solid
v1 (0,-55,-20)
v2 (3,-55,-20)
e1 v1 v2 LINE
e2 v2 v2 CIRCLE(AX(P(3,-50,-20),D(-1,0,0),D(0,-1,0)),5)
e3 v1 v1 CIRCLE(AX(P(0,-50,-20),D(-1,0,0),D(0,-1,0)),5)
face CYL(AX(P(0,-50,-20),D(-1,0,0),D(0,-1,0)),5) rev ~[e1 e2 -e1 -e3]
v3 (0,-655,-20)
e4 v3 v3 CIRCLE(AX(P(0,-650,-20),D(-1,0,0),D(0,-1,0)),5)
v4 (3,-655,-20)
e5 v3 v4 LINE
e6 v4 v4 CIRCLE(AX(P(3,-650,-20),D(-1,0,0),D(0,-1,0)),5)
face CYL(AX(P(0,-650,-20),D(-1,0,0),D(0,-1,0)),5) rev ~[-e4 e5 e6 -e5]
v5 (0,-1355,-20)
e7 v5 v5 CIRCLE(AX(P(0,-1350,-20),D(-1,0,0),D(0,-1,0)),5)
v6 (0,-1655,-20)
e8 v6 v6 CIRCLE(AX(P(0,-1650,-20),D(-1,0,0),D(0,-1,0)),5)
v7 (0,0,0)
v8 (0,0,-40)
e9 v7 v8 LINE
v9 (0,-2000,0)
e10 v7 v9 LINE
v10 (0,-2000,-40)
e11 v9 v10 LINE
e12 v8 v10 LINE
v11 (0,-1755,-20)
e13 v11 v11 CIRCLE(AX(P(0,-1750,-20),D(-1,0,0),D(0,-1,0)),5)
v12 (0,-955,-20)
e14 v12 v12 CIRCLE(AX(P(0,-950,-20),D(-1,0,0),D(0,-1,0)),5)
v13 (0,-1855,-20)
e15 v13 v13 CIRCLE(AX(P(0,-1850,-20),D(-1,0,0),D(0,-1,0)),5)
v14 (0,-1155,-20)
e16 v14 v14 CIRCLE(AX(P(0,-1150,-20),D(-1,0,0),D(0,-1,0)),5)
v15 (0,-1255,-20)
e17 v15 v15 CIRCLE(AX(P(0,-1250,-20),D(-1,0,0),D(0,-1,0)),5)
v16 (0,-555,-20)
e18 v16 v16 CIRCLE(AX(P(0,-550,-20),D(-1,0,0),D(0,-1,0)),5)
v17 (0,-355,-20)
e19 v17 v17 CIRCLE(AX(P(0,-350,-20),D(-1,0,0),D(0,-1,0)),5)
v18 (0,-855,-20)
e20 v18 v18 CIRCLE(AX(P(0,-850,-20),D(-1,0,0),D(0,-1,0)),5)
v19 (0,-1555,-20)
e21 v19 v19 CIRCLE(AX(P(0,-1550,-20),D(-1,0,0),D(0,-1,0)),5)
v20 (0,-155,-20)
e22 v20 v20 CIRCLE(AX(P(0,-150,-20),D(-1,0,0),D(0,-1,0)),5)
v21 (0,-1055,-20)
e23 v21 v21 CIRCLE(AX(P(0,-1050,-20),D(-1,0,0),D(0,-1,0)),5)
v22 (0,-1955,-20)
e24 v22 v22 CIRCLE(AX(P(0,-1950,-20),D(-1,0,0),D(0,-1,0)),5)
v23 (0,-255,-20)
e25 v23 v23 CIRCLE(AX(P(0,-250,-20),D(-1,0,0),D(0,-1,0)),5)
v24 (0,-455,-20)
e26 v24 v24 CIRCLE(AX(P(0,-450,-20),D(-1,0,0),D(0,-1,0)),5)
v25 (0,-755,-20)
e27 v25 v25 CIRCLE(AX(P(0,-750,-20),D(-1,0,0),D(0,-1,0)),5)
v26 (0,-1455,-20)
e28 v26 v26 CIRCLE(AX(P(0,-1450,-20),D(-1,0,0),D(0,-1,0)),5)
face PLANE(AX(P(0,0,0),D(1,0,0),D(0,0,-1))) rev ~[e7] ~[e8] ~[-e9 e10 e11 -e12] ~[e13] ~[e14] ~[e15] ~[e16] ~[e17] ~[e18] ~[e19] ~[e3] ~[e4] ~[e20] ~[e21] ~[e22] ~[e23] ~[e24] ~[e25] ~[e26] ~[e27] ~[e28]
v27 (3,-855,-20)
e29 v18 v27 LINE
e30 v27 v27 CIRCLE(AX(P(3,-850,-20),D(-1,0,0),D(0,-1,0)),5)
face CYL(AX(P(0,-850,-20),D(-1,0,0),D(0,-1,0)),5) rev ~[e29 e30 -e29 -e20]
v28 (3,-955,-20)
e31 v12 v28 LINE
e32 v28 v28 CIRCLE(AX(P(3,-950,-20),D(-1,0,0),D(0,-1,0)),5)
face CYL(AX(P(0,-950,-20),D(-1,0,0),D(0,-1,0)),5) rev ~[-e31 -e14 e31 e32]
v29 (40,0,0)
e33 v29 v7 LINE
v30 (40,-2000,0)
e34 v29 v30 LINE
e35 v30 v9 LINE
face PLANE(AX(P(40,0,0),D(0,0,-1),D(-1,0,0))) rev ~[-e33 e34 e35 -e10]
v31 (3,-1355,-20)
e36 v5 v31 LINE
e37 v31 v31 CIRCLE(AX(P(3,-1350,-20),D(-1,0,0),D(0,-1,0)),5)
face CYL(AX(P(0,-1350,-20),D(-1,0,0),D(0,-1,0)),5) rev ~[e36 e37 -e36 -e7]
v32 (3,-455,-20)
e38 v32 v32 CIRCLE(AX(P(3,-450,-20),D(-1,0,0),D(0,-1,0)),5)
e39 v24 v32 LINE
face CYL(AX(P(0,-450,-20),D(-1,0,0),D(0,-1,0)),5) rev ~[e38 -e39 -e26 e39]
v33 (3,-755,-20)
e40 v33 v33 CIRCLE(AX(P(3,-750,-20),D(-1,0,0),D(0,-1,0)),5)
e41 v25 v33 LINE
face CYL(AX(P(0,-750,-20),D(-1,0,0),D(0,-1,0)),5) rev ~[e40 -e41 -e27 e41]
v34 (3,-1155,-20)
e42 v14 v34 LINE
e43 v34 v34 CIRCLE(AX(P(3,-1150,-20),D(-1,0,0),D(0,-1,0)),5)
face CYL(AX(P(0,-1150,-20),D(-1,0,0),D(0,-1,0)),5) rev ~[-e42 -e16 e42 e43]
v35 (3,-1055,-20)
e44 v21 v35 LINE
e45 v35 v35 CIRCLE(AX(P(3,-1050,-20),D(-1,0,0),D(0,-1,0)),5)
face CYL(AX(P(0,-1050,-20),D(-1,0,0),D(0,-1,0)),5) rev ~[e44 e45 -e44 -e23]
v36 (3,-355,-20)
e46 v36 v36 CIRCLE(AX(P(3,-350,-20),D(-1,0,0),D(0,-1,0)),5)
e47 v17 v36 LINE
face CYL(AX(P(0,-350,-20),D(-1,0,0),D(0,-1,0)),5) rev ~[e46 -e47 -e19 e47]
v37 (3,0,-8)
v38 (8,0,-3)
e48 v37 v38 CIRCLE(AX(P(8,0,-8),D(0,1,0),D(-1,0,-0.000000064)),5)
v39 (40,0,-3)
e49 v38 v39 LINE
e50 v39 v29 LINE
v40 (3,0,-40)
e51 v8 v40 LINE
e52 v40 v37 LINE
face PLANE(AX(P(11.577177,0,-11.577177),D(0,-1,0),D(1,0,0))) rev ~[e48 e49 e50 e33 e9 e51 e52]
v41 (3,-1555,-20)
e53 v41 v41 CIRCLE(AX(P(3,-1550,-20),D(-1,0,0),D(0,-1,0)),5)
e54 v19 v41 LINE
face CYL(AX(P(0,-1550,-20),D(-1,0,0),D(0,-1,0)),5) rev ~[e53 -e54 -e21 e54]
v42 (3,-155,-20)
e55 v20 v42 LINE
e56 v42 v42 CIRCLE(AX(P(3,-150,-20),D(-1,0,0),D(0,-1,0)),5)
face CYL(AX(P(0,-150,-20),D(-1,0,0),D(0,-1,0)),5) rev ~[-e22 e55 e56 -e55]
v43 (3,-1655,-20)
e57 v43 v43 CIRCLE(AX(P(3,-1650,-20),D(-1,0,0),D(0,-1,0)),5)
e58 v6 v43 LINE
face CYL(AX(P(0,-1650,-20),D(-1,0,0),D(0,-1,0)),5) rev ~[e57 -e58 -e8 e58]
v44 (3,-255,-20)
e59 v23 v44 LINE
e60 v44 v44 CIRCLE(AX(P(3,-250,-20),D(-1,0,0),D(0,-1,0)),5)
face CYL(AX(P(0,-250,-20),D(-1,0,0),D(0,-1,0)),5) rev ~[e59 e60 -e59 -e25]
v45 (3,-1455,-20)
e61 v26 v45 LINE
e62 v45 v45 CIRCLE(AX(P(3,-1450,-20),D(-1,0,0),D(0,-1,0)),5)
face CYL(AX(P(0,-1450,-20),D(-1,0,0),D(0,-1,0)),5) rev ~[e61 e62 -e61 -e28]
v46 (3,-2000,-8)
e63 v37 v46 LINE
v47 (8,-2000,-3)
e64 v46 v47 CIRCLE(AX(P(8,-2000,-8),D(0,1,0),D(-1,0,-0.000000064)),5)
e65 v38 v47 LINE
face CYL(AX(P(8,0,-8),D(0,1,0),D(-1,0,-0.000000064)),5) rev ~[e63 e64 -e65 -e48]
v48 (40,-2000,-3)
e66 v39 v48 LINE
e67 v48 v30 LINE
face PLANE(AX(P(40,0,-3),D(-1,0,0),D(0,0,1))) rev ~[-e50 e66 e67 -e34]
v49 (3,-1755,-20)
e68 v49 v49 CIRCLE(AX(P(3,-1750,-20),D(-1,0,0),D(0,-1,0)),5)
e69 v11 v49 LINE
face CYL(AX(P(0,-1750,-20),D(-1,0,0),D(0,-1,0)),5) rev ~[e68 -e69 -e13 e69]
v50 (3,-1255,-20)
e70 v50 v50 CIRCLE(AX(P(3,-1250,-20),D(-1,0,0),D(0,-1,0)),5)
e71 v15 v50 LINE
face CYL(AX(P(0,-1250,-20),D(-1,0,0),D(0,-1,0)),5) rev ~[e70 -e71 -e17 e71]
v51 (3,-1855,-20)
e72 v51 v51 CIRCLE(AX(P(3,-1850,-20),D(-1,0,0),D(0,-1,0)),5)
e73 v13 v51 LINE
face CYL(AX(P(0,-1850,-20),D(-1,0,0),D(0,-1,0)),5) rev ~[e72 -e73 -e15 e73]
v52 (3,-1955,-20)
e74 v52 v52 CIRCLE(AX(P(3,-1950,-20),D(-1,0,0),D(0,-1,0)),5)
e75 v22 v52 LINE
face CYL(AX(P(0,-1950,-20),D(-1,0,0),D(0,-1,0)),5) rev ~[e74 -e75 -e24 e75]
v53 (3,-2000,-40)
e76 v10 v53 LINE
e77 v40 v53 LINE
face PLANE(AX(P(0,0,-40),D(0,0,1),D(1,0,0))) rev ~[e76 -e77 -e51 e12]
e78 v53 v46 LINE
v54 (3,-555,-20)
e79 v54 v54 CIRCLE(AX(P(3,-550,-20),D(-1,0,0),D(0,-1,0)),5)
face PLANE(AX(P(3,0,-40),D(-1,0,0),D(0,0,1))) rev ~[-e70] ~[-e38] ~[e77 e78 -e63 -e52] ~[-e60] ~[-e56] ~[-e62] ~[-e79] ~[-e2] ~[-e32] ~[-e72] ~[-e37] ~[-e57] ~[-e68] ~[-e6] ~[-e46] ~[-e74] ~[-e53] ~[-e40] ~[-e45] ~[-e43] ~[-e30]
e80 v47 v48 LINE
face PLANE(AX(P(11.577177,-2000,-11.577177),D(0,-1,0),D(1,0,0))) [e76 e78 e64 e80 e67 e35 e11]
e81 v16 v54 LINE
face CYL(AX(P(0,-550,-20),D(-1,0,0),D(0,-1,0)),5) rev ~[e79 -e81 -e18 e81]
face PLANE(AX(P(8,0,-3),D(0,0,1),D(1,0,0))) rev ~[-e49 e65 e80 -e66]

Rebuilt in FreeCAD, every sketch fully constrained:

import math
import FreeCAD as App
import Part
import Sketcher

V = App.Vector
Q = App.Units.Quantity

doc = App.newDocument("Part")
params = doc.addObject("Spreadsheet::Sheet", "Params")
for row, (alias, value) in enumerate([
    ("sketch1_radius", "5 mm"),
    ("sketch1_width", "40 mm"),
    ("sketch1_width2", "3 mm"),
    ("pad1_length", "2000 mm"),
    ("sketch2_diameter", "10 mm"),
], start=1):
    params.set(f"A{row}", alias)
    params.set(f"B{row}", "=" + value)
    params.setAlias(f"B{row}", alias)

body = doc.addObject("PartDesign::Body", "Body")

sketch1 = body.newObject("Sketcher::SketchObject", "Sketch")
sketch1.AttachmentSupport = (doc.getObject("XZ_Plane"), [""])
sketch1.MapMode = "FlatFace"
sketch1.addGeometry(Part.LineSegment(V(40, 0, 0), V(0, 0, 0)), False)
sketch1.addGeometry(Part.LineSegment(V(0, 0, 0), V(0, -40, 0)), False)
sketch1.addGeometry(Part.LineSegment(V(0, -40, 0), V(3, -40, 0)), False)
sketch1.addGeometry(Part.LineSegment(V(3, -40, 0), V(3, -8, 0)), False)
sketch1.addGeometry(Part.ArcOfCircle(Part.Circle(V(8, -8, 0), V(0, 0, 1), 5), math.radians(90), math.radians(180)), False)
sketch1.addGeometry(Part.LineSegment(V(8, -3, 0), V(40, -3, 0)), False)
sketch1.addGeometry(Part.LineSegment(V(40, -3, 0), V(40, 0, 0)), False)
sketch1.addConstraint(Sketcher.Constraint("Coincident", 0, 2, 1, 1))
sketch1.addConstraint(Sketcher.Constraint("Coincident", 1, 2, 2, 1))
sketch1.addConstraint(Sketcher.Constraint("Coincident", 2, 2, 3, 1))
sketch1.addConstraint(Sketcher.Constraint("Tangent", 3, 2, 4, 2))
sketch1.addConstraint(Sketcher.Constraint("Tangent", 4, 1, 5, 1))
sketch1.addConstraint(Sketcher.Constraint("Coincident", 5, 2, 6, 1))
sketch1.addConstraint(Sketcher.Constraint("Coincident", 6, 2, 0, 1))
sketch1.addConstraint(Sketcher.Constraint("Horizontal", 0))
sketch1.addConstraint(Sketcher.Constraint("Vertical", 1))
sketch1.addConstraint(Sketcher.Constraint("Horizontal", 2))
sketch1.addConstraint(Sketcher.Constraint("Vertical", 3))
sketch1.addConstraint(Sketcher.Constraint("Horizontal", 5))
sketch1.addConstraint(Sketcher.Constraint("Vertical", 6))
sketch1.addConstraint(Sketcher.Constraint("Coincident", 0, 2, -1, 1))
sketch1.addConstraint(Sketcher.Constraint("Equal", 0, 1))
sketch1.addConstraint(Sketcher.Constraint("Equal", 5, 3))
sketch1.addConstraint(Sketcher.Constraint("Radius", 4, Q("5 mm")))
sketch1.addConstraint(Sketcher.Constraint("DistanceX", 0, 2, 0, 1, Q("40 mm")))
sketch1.addConstraint(Sketcher.Constraint("DistanceX", 2, 1, 2, 2, Q("3 mm")))
sketch1.setExpression("Constraints[16]", "Params.sketch1_radius")
sketch1.setExpression("Constraints[17]", "Params.sketch1_width")
sketch1.setExpression("Constraints[18]", "Params.sketch1_width2")
pad1 = body.newObject("PartDesign::Pad", "Pad")
pad1.Profile = sketch1
pad1.setExpression("Length", "Params.pad1_length")

sketch2 = body.newObject("Sketcher::SketchObject", "Sketch001")
sketch2.AttachmentSupport = (doc.getObject("YZ_Plane"), [""])
sketch2.MapMode = "FlatFace"
sketch2.addGeometry(Part.Circle(V(-50, -20, 0), V(0, 0, 1), 5), False)
sketch2.addGeometry(Part.Circle(V(-150, -20, 0), V(0, 0, 1), 5), False)
sketch2.addGeometry(Part.Circle(V(-250, -20, 0), V(0, 0, 1), 5), False)
sketch2.addGeometry(Part.Circle(V(-350, -20, 0), V(0, 0, 1), 5), False)
sketch2.addGeometry(Part.Circle(V(-450, -20, 0), V(0, 0, 1), 5), False)
sketch2.addGeometry(Part.Circle(V(-550, -20, 0), V(0, 0, 1), 5), False)
sketch2.addGeometry(Part.Circle(V(-650, -20, 0), V(0, 0, 1), 5), False)
sketch2.addGeometry(Part.Circle(V(-750, -20, 0), V(0, 0, 1), 5), False)
sketch2.addGeometry(Part.Circle(V(-850, -20, 0), V(0, 0, 1), 5), False)
sketch2.addGeometry(Part.Circle(V(-950, -20, 0), V(0, 0, 1), 5), False)
sketch2.addGeometry(Part.Circle(V(-1050, -20, 0), V(0, 0, 1), 5), False)
sketch2.addGeometry(Part.Circle(V(-1150, -20, 0), V(0, 0, 1), 5), False)
sketch2.addGeometry(Part.Circle(V(-1250, -20, 0), V(0, 0, 1), 5), False)
sketch2.addGeometry(Part.Circle(V(-1350, -20, 0), V(0, 0, 1), 5), False)
sketch2.addGeometry(Part.Circle(V(-1450, -20, 0), V(0, 0, 1), 5), False)
sketch2.addGeometry(Part.Circle(V(-1550, -20, 0), V(0, 0, 1), 5), False)
sketch2.addGeometry(Part.Circle(V(-1650, -20, 0), V(0, 0, 1), 5), False)
sketch2.addGeometry(Part.Circle(V(-1750, -20, 0), V(0, 0, 1), 5), False)
sketch2.addGeometry(Part.Circle(V(-1850, -20, 0), V(0, 0, 1), 5), False)
sketch2.addGeometry(Part.Circle(V(-1950, -20, 0), V(0, 0, 1), 5), False)
sketch2.addGeometry(Part.Circle(V(-2050, -20, 0), V(0, 0, 1), 5), False)
sketch2.addGeometry(Part.Circle(V(-2150, -20, 0), V(0, 0, 1), 5), False)
sketch2.addGeometry(Part.Circle(V(-2250, -20, 0), V(0, 0, 1), 5), False)
sketch2.addGeometry(Part.Circle(V(-2350, -20, 0), V(0, 0, 1), 5), False)
sketch2.addGeometry(Part.Circle(V(-2450, -20, 0), V(0, 0, 1), 5), False)
sketch2.addConstraint(Sketcher.Constraint("Equal", 0, 1))
sketch2.addConstraint(Sketcher.Constraint("Equal", 1, 2))
sketch2.addConstraint(Sketcher.Constraint("Equal", 2, 3))
sketch2.addConstraint(Sketcher.Constraint("Equal", 3, 4))
sketch2.addConstraint(Sketcher.Constraint("Equal", 4, 5))
sketch2.addConstraint(Sketcher.Constraint("Equal", 5, 6))
sketch2.addConstraint(Sketcher.Constraint("Equal", 6, 7))
sketch2.addConstraint(Sketcher.Constraint("Equal", 7, 8))
sketch2.addConstraint(Sketcher.Constraint("Equal", 8, 9))
sketch2.addConstraint(Sketcher.Constraint("Equal", 9, 10))
sketch2.addConstraint(Sketcher.Constraint("Equal", 10, 11))
sketch2.addConstraint(Sketcher.Constraint("Equal", 11, 12))
sketch2.addConstraint(Sketcher.Constraint("Equal", 12, 13))
sketch2.addConstraint(Sketcher.Constraint("Equal", 13, 14))
sketch2.addConstraint(Sketcher.Constraint("Equal", 14, 15))
sketch2.addConstraint(Sketcher.Constraint("Equal", 15, 16))
sketch2.addConstraint(Sketcher.Constraint("Equal", 16, 17))
sketch2.addConstraint(Sketcher.Constraint("Equal", 17, 18))
sketch2.addConstraint(Sketcher.Constraint("Equal", 18, 19))
sketch2.addConstraint(Sketcher.Constraint("Equal", 19, 20))
sketch2.addConstraint(Sketcher.Constraint("Equal", 20, 21))
sketch2.addConstraint(Sketcher.Constraint("Equal", 21, 22))
sketch2.addConstraint(Sketcher.Constraint("Equal", 22, 23))
sketch2.addConstraint(Sketcher.Constraint("Equal", 23, 24))
sketch2.addConstraint(Sketcher.Constraint("Horizontal", 0, 3, 1, 3))
sketch2.addConstraint(Sketcher.Constraint("Horizontal", 1, 3, 2, 3))
sketch2.addConstraint(Sketcher.Constraint("Horizontal", 2, 3, 3, 3))
sketch2.addConstraint(Sketcher.Constraint("Horizontal", 3, 3, 4, 3))
sketch2.addConstraint(Sketcher.Constraint("Horizontal", 4, 3, 5, 3))
sketch2.addConstraint(Sketcher.Constraint("Horizontal", 5, 3, 6, 3))
sketch2.addConstraint(Sketcher.Constraint("Horizontal", 6, 3, 7, 3))
sketch2.addConstraint(Sketcher.Constraint("Horizontal", 7, 3, 8, 3))
sketch2.addConstraint(Sketcher.Constraint("Horizontal", 8, 3, 9, 3))
sketch2.addConstraint(Sketcher.Constraint("Horizontal", 9, 3, 10, 3))
sketch2.addConstraint(Sketcher.Constraint("Horizontal", 10, 3, 11, 3))
sketch2.addConstraint(Sketcher.Constraint("Horizontal", 11, 3, 12, 3))
sketch2.addConstraint(Sketcher.Constraint("Horizontal", 12, 3, 13, 3))
sketch2.addConstraint(Sketcher.Constraint("Horizontal", 13, 3, 14, 3))
sketch2.addConstraint(Sketcher.Constraint("Horizontal", 14, 3, 15, 3))
sketch2.addConstraint(Sketcher.Constraint("Horizontal", 15, 3, 16, 3))
sketch2.addConstraint(Sketcher.Constraint("Horizontal", 16, 3, 17, 3))
sketch2.addConstraint(Sketcher.Constraint("Horizontal", 17, 3, 18, 3))
sketch2.addConstraint(Sketcher.Constraint("Horizontal", 18, 3, 19, 3))
sketch2.addConstraint(Sketcher.Constraint("Horizontal", 19, 3, 20, 3))
sketch2.addConstraint(Sketcher.Constraint("Horizontal", 20, 3, 21, 3))
sketch2.addConstraint(Sketcher.Constraint("Horizontal", 21, 3, 22, 3))
sketch2.addConstraint(Sketcher.Constraint("Horizontal", 22, 3, 23, 3))
sketch2.addConstraint(Sketcher.Constraint("Horizontal", 23, 3, 24, 3))
sketch2.addConstraint(Sketcher.Constraint("Diameter", 0, Q("10 mm")))
sketch2.addConstraint(Sketcher.Constraint("DistanceX", 0, 3, -1, 1, Q("50 mm")))
sketch2.addConstraint(Sketcher.Constraint("DistanceY", 0, 3, -1, 1, Q("20 mm")))
sketch2.addConstraint(Sketcher.Constraint("DistanceX", 1, 3, -1, 1, Q("150 mm")))
sketch2.addConstraint(Sketcher.Constraint("DistanceX", 2, 3, -1, 1, Q("250 mm")))
sketch2.addConstraint(Sketcher.Constraint("DistanceX", 3, 3, -1, 1, Q("350 mm")))
sketch2.addConstraint(Sketcher.Constraint("DistanceX", 4, 3, -1, 1, Q("450 mm")))
sketch2.addConstraint(Sketcher.Constraint("DistanceX", 5, 3, -1, 1, Q("550 mm")))
sketch2.addConstraint(Sketcher.Constraint("DistanceX", 6, 3, -1, 1, Q("650 mm")))
sketch2.addConstraint(Sketcher.Constraint("DistanceX", 7, 3, -1, 1, Q("750 mm")))
sketch2.addConstraint(Sketcher.Constraint("DistanceX", 8, 3, -1, 1, Q("850 mm")))
sketch2.addConstraint(Sketcher.Constraint("DistanceX", 9, 3, -1, 1, Q("950 mm")))
sketch2.addConstraint(Sketcher.Constraint("DistanceX", 10, 3, -1, 1, Q("1050 mm")))
sketch2.addConstraint(Sketcher.Constraint("DistanceX", 11, 3, -1, 1, Q("1150 mm")))
sketch2.addConstraint(Sketcher.Constraint("DistanceX", 12, 3, -1, 1, Q("1250 mm")))
sketch2.addConstraint(Sketcher.Constraint("DistanceX", 13, 3, -1, 1, Q("1350 mm")))
sketch2.addConstraint(Sketcher.Constraint("DistanceX", 14, 3, -1, 1, Q("1450 mm")))
sketch2.addConstraint(Sketcher.Constraint("DistanceX", 15, 3, -1, 1, Q("1550 mm")))
sketch2.addConstraint(Sketcher.Constraint("DistanceX", 16, 3, -1, 1, Q("1650 mm")))
sketch2.addConstraint(Sketcher.Constraint("DistanceX", 17, 3, -1, 1, Q("1750 mm")))
sketch2.addConstraint(Sketcher.Constraint("DistanceX", 18, 3, -1, 1, Q("1850 mm")))
sketch2.addConstraint(Sketcher.Constraint("DistanceX", 19, 3, -1, 1, Q("1950 mm")))
sketch2.addConstraint(Sketcher.Constraint("DistanceX", 20, 3, -1, 1, Q("2050 mm")))
sketch2.addConstraint(Sketcher.Constraint("DistanceX", 21, 3, -1, 1, Q("2150 mm")))
sketch2.addConstraint(Sketcher.Constraint("DistanceX", 22, 3, -1, 1, Q("2250 mm")))
sketch2.addConstraint(Sketcher.Constraint("DistanceX", 23, 3, -1, 1, Q("2350 mm")))
sketch2.addConstraint(Sketcher.Constraint("DistanceX", 24, 3, -1, 1, Q("2450 mm")))
sketch2.setExpression("Constraints[48]", "Params.sketch2_diameter")
pocket1 = body.newObject("PartDesign::Pocket", "Pocket")
pocket1.Profile = sketch2
pocket1.Type = "ThroughAll"
pocket1.Reversed = True

doc.recompute()
